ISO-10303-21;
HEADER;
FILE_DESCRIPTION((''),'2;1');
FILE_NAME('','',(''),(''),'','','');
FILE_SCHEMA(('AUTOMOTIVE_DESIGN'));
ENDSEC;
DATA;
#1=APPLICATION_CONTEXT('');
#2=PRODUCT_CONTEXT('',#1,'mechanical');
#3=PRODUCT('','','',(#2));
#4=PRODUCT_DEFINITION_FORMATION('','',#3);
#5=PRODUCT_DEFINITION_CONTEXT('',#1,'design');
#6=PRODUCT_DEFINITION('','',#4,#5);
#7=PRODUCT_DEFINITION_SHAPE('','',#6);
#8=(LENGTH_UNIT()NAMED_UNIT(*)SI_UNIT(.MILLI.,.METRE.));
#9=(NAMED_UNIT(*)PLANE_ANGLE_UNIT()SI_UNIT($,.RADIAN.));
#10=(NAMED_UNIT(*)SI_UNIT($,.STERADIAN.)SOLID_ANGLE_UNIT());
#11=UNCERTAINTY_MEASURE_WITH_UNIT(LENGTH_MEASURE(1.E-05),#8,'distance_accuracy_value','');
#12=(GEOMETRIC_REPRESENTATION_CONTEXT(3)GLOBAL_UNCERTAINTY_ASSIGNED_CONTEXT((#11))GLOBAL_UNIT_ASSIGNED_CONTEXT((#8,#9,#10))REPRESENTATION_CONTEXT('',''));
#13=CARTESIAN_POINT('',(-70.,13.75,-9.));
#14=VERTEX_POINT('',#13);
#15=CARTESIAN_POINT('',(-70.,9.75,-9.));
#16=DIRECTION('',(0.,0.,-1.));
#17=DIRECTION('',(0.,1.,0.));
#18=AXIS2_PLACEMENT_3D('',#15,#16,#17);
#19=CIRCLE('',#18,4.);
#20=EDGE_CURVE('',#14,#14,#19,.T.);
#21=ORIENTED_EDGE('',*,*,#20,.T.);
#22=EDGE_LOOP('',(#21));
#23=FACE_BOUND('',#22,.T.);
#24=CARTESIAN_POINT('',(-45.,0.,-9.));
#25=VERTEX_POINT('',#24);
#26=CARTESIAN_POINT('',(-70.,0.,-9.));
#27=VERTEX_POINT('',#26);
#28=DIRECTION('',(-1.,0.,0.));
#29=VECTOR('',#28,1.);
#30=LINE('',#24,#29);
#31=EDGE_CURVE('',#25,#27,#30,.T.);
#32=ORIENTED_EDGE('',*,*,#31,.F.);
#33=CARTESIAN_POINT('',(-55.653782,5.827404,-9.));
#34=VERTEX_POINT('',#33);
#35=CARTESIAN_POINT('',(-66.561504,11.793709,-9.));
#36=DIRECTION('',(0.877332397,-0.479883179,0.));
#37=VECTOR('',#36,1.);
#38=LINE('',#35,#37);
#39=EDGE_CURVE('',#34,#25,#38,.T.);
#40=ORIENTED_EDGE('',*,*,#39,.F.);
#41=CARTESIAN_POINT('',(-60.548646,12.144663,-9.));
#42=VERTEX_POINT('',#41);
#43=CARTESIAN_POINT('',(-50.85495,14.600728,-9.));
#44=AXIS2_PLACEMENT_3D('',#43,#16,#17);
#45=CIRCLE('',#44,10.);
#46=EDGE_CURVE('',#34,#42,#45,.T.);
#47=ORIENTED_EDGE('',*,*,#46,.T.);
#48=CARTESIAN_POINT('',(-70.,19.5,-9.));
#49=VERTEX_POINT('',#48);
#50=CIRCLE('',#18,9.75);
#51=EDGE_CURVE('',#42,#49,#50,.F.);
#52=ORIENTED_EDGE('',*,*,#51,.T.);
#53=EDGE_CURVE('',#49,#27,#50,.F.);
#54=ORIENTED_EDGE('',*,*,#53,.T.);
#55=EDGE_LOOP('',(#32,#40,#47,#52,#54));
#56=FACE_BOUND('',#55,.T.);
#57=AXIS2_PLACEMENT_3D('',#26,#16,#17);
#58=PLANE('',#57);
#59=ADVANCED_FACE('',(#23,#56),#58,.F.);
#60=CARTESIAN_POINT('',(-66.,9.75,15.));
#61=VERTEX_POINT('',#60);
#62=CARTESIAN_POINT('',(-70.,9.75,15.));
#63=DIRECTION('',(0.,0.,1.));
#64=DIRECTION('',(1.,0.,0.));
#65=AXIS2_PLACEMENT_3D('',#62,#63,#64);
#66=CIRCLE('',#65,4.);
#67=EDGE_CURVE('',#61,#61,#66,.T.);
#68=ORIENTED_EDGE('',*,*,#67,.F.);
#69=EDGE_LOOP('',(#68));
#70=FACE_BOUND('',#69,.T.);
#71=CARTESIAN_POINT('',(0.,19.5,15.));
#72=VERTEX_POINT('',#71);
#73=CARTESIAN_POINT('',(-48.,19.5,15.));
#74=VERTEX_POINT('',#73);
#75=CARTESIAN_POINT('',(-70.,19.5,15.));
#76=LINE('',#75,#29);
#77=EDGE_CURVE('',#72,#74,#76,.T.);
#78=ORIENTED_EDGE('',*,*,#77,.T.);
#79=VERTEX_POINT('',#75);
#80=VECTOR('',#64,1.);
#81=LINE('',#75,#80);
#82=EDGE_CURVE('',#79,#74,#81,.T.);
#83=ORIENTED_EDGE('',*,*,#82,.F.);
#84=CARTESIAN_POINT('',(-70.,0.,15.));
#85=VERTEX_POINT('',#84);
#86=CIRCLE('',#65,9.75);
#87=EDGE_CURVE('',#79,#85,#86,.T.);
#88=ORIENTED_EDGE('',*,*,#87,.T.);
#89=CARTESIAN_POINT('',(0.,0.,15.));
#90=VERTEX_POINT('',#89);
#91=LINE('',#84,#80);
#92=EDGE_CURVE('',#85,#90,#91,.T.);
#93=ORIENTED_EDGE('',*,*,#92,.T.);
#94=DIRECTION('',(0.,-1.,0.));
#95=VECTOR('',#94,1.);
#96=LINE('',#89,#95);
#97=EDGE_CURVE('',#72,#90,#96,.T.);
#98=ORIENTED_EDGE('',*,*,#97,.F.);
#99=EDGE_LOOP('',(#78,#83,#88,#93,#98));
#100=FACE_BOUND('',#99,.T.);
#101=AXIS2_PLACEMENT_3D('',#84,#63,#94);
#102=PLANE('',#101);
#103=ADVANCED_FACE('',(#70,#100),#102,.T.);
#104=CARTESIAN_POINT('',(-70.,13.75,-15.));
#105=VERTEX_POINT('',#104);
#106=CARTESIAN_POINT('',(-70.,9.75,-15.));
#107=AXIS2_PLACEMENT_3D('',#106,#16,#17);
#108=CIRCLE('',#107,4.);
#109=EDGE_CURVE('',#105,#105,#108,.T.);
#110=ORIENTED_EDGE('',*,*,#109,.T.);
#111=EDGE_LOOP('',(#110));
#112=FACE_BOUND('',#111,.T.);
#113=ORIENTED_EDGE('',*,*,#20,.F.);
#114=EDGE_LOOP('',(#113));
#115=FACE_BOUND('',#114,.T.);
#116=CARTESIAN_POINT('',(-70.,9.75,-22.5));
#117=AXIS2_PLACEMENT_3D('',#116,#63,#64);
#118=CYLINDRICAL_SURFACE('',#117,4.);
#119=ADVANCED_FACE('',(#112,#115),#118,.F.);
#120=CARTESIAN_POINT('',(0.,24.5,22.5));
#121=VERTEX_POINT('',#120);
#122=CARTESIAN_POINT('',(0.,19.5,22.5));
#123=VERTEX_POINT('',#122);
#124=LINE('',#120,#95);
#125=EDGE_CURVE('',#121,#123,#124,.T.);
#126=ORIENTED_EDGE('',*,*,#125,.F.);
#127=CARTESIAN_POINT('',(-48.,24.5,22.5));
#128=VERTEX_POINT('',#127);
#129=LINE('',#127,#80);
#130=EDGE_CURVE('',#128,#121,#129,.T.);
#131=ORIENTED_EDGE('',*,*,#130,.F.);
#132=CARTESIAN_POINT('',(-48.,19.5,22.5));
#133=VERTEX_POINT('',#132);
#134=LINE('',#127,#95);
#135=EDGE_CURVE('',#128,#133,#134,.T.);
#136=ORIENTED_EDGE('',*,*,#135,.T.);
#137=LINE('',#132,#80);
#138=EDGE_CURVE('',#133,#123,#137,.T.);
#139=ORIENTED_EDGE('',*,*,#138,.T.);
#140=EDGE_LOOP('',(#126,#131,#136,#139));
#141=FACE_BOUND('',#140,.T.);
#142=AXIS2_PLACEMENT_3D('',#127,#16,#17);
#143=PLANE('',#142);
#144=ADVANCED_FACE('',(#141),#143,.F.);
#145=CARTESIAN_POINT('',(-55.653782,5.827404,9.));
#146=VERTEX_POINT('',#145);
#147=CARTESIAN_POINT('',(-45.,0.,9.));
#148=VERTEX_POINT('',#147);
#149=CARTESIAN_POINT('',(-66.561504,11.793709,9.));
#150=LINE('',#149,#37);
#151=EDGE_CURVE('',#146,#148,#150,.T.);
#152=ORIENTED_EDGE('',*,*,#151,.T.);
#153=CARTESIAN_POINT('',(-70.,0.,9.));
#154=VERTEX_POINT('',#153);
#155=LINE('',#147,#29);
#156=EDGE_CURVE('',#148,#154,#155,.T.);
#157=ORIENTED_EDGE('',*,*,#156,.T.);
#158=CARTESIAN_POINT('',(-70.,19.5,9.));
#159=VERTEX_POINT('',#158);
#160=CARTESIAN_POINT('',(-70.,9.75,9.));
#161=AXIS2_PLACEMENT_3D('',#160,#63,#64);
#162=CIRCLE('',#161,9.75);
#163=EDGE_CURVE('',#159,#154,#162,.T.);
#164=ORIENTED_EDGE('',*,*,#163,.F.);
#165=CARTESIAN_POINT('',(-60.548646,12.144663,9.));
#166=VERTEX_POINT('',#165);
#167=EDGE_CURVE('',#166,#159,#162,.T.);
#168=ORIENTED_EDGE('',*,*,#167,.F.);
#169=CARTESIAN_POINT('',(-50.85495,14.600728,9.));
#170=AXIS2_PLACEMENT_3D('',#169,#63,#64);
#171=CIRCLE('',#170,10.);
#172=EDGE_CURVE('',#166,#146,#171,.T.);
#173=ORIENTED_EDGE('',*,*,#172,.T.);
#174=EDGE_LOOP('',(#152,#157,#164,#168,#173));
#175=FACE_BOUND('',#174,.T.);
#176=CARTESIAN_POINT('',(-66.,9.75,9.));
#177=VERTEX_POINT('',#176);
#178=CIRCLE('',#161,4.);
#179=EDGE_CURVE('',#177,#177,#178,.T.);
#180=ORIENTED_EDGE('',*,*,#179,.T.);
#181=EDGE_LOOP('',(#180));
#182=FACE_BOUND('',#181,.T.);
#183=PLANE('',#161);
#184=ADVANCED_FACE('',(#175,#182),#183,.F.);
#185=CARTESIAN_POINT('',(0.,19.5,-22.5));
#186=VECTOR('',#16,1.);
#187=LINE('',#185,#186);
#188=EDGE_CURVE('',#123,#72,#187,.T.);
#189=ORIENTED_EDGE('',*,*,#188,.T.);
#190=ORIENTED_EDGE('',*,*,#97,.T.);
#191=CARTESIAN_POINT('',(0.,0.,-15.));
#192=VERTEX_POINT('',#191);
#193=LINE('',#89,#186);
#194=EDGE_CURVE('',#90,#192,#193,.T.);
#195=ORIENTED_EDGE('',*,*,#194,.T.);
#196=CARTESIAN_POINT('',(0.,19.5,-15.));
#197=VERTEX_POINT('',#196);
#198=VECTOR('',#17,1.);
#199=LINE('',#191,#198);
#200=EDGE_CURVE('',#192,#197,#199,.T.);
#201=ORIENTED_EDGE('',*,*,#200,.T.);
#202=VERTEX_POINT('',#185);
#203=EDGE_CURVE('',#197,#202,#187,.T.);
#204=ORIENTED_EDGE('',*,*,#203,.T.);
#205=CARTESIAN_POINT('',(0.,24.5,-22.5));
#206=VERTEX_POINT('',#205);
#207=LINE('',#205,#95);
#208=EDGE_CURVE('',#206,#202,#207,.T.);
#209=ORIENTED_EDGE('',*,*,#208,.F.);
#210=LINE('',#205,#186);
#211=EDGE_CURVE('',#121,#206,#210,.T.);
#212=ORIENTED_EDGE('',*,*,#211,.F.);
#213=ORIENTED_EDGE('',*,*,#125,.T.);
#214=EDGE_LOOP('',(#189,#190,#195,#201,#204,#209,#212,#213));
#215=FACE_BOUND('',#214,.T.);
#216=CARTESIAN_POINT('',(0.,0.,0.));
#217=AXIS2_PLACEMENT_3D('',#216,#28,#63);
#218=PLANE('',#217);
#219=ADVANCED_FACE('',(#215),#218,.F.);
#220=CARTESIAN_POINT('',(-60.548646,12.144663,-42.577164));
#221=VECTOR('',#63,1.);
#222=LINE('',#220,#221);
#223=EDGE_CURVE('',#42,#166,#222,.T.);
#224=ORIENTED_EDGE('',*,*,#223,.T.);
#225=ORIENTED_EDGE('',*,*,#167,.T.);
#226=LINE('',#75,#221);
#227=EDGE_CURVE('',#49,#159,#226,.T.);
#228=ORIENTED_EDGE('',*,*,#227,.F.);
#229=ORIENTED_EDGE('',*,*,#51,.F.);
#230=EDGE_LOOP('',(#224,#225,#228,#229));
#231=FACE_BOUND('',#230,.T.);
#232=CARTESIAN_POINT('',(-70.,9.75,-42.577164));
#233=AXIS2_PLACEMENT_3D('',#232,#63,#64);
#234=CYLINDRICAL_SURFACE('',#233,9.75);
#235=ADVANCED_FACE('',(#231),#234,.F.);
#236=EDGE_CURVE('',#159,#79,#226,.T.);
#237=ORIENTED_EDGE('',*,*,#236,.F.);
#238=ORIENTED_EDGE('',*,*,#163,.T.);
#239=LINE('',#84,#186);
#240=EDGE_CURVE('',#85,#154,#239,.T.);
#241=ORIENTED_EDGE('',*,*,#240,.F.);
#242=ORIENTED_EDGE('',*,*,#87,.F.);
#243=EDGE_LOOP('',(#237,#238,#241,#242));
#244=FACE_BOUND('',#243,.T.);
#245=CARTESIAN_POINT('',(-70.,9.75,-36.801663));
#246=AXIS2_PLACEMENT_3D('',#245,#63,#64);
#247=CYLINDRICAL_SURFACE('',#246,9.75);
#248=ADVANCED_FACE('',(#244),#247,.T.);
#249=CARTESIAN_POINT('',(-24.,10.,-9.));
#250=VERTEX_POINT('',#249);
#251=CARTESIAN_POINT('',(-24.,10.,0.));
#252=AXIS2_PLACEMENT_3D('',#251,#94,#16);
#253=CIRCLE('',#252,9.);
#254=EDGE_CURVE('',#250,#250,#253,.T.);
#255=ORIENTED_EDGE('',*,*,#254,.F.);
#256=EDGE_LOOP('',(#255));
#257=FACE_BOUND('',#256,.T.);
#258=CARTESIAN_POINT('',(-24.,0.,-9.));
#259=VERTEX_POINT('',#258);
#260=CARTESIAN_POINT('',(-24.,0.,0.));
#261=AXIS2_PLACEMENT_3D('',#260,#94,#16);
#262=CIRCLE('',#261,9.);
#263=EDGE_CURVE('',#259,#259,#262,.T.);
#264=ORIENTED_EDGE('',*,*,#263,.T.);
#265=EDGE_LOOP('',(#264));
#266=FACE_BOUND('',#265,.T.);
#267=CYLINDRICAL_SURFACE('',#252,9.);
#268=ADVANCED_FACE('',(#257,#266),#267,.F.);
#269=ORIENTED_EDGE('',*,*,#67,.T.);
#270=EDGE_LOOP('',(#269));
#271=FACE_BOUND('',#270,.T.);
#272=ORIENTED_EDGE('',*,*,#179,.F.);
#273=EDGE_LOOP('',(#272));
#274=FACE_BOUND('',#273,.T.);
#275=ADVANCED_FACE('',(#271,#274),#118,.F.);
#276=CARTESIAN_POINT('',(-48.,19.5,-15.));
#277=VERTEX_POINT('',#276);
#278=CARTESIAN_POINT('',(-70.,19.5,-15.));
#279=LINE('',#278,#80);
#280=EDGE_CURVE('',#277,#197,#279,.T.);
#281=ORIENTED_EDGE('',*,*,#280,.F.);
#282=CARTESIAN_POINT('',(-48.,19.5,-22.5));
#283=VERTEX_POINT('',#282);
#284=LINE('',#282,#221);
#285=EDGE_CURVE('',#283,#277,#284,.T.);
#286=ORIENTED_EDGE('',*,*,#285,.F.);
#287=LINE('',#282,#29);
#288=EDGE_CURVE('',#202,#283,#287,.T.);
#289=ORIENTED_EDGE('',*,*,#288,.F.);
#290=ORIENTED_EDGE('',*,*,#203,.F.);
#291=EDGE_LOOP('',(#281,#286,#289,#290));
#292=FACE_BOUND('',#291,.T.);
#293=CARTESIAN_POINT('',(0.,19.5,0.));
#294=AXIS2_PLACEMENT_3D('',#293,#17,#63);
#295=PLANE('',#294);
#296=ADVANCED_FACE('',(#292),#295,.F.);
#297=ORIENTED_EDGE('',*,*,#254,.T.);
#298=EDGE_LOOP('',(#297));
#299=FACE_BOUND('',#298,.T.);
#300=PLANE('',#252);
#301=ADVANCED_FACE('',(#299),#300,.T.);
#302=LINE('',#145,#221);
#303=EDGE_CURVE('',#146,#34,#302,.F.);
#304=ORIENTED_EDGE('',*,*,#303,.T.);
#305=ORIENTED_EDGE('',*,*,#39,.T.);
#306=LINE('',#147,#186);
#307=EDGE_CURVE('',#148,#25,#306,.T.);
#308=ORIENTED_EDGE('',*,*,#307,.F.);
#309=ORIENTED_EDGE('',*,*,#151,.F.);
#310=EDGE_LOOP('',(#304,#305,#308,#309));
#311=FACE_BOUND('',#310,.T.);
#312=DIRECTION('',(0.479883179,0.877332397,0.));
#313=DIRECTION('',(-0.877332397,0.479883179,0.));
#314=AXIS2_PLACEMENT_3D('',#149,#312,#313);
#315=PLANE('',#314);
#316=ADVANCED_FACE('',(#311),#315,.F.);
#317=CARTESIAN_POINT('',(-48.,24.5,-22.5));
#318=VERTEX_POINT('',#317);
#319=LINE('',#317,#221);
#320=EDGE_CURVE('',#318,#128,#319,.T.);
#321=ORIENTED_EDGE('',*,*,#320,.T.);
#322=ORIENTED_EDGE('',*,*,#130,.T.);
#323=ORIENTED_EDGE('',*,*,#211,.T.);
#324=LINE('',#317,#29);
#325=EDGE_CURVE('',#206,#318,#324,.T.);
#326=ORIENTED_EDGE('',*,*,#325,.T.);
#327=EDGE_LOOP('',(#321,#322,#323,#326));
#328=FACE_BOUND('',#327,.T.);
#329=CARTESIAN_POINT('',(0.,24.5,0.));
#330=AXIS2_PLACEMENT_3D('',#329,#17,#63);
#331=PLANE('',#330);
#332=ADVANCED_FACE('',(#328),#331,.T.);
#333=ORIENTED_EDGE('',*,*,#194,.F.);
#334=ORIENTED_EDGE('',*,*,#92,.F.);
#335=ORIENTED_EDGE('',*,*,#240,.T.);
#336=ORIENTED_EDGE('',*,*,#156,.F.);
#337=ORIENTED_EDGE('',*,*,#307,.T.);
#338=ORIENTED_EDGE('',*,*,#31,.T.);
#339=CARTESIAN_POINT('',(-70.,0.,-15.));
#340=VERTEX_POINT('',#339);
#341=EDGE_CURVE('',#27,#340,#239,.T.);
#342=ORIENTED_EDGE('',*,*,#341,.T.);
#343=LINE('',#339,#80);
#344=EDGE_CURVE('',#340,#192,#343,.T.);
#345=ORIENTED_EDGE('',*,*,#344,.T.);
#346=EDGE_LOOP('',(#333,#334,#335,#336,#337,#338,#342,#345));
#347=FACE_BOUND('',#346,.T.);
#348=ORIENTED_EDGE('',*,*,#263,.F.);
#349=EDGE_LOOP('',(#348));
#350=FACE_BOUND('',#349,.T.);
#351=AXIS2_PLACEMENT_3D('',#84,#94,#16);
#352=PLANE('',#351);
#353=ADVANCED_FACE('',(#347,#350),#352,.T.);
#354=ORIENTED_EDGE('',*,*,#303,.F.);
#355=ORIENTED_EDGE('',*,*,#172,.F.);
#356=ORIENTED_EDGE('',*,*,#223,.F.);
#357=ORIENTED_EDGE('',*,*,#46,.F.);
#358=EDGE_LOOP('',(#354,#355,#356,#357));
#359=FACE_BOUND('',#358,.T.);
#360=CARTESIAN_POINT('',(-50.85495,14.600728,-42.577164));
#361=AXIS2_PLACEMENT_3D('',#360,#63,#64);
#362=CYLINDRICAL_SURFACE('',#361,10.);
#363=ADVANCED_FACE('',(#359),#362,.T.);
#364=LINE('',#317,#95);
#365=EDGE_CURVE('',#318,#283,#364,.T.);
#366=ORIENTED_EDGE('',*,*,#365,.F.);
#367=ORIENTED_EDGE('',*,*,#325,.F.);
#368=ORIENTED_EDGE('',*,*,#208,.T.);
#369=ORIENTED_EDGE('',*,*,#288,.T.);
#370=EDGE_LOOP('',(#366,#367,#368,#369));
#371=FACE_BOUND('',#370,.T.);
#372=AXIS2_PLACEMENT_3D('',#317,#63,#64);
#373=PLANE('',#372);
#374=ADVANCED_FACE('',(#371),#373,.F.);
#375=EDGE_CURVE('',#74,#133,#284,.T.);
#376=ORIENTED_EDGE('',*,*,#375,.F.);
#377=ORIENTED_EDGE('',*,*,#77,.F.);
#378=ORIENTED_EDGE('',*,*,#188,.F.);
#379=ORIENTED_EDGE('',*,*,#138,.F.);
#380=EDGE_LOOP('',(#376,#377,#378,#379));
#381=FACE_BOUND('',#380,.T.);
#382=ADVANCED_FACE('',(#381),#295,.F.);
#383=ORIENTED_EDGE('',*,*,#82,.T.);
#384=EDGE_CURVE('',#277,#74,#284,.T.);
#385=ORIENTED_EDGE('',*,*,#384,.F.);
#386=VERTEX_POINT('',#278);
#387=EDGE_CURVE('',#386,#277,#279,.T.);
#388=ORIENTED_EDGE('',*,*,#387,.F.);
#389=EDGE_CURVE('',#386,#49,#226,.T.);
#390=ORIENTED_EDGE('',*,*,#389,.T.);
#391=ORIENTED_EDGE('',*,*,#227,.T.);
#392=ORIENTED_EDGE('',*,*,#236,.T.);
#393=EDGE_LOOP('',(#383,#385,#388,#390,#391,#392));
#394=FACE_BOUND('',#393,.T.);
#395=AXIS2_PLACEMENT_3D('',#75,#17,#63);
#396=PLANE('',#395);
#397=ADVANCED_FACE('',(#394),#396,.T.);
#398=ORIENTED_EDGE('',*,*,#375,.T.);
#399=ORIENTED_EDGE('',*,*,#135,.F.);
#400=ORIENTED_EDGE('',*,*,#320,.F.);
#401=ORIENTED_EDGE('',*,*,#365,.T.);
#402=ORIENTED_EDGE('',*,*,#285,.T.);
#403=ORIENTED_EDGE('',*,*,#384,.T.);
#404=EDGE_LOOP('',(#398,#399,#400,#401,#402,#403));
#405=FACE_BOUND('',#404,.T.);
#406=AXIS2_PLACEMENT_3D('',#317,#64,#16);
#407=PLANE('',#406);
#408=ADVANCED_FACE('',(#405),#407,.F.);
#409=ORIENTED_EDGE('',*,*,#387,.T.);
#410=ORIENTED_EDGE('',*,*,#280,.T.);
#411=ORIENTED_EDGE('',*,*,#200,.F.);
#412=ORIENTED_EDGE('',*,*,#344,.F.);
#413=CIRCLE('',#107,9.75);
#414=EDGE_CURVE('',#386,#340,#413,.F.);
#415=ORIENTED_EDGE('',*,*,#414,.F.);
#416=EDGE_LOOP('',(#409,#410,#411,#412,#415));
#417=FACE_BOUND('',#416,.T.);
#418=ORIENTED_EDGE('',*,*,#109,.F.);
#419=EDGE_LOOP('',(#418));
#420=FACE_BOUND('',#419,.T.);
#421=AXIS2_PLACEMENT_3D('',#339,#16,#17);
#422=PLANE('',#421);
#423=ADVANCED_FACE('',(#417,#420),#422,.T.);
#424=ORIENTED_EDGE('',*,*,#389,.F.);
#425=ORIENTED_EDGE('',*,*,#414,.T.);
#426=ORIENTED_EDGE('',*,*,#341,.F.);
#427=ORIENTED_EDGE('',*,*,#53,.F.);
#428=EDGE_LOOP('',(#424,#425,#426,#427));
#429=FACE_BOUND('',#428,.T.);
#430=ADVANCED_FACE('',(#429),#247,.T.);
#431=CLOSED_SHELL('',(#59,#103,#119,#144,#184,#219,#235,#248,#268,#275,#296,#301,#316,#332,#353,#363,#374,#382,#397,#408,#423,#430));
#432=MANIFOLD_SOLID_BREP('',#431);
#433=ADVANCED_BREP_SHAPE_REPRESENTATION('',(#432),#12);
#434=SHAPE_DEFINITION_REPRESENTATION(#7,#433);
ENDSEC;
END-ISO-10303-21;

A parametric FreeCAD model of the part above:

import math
import FreeCAD as App
import Part
import Sketcher

V = App.Vector


def edges_at(feature, points):
    """Names of the edges that pass closest to the given points."""
    edges = feature.Shape.Edges
    near = lambda p: min(range(len(edges)), key=lambda i: edges[i].distToShape(Part.Vertex(*p))[0])
    return sorted({f"Edge{near(p) + 1}" for p in points})


def add_polygon(sketch, points):
    """Adds a closed chain of lines whose ends are joined by coincident constraints."""
    first, n = sketch.GeometryCount, len(points)
    for a, b in zip(points, points[1:] + points[:1]):
        sketch.addGeometry(Part.LineSegment(App.Vector(*a, 0), App.Vector(*b, 0)), False)
    for i in range(n):
        sketch.addConstraint(Sketcher.Constraint("Coincident", first + i, 2, first + (i + 1) % n, 1))

doc = App.newDocument("Part")
body = doc.addObject("PartDesign::Body", "Body")

sketch1 = body.newObject("Sketcher::SketchObject", "Sketch")
sketch1.AttachmentSupport = (doc.getObject("YZ_Plane"), [""])
sketch1.MapMode = "FlatFace"
add_polygon(sketch1, [(20, 15), (0, 15), (0, -15), (20, -15)])
sketch1.addConstraint(Sketcher.Constraint("Horizontal", 0))
sketch1.addConstraint(Sketcher.Constraint("Vertical", 1))
sketch1.addConstraint(Sketcher.Constraint("Horizontal", 2))
sketch1.addConstraint(Sketcher.Constraint("Vertical", 3))
sketch1.addConstraint(Sketcher.Constraint("Symmetric", 0, 2, 1, 2, -1, 1))
sketch1.addConstraint(Sketcher.Constraint("DistanceY", 1, 2, 1, 1, 30.0))
sketch1.addConstraint(Sketcher.Constraint("DistanceX", 0, 2, 0, 1, 19.5))
pad1 = body.newObject("PartDesign::Pad", "Pad")
pad1.Profile = sketch1
pad1.Length = 70
pad1.Reversed = True

sketch2 = body.newObject("Sketcher::SketchObject", "Sketch001")
sketch2.AttachmentSupport = (doc.getObject("XY_Plane"), [""])
sketch2.MapMode = "FlatFace"
sketch2.AttachmentOffset = App.Placement(V(0, 0, 15), App.Rotation())
sketch2.addGeometry(Part.LineSegment(V(-70, 0, 0), V(-70, 20, 0)), False)
sketch2.addGeometry(Part.ArcOfCircle(Part.Circle(V(-70, 10, 0), V(0, 0, 1), 10), math.radians(90), math.radians(270)), False)
sketch2.addConstraint(Sketcher.Constraint("Coincident", 0, 1, 1, 2))
sketch2.addConstraint(Sketcher.Constraint("Coincident", 1, 1, 0, 2))
sketch2.addConstraint(Sketcher.Constraint("Vertical", 0))
sketch2.addConstraint(Sketcher.Constraint("PointOnObject", 0, 1, -1))
sketch2.addConstraint(Sketcher.Constraint("Vertical", 1, 3, 0, 1))
sketch2.addConstraint(Sketcher.Constraint("Radius", 1, 9.75))
sketch2.addConstraint(Sketcher.Constraint("DistanceX", 1, 3, -1, 1, 70.0))
pad2 = body.newObject("PartDesign::Pad", "Pad001")
pad2.Profile = sketch2
pad2.Length = 30
pad2.Reversed = True

sketch3 = body.newObject("Sketcher::SketchObject", "Sketch002")
sketch3.AttachmentSupport = (doc.getObject("XZ_Plane"), [""])
sketch3.MapMode = "FlatFace"
sketch3.AttachmentOffset = App.Placement(V(0, 0, -19.5), App.Rotation())
add_polygon(sketch3, [(-48, -22), (-48, 22), (0, 22), (0, -22)])
sketch3.addConstraint(Sketcher.Constraint("Vertical", 0))
sketch3.addConstraint(Sketcher.Constraint("Horizontal", 1))
sketch3.addConstraint(Sketcher.Constraint("Vertical", 2))
sketch3.addConstraint(Sketcher.Constraint("Horizontal", 3))
sketch3.addConstraint(Sketcher.Constraint("Symmetric", 1, 2, 2, 2, -1, 1))
sketch3.addConstraint(Sketcher.Constraint("DistanceX", 1, 1, 1, 2, 48.0))
sketch3.addConstraint(Sketcher.Constraint("DistanceY", 0, 1, 0, 2, 45.0))
pad3 = body.newObject("PartDesign::Pad", "Pad002")
pad3.Profile = sketch3
pad3.Length = 5
pad3.Reversed = True

sketch4 = body.newObject("Sketcher::SketchObject", "Sketch003")
sketch4.AttachmentSupport = (doc.getObject("XY_Plane"), [""])
sketch4.MapMode = "FlatFace"
sketch4.AttachmentOffset = App.Placement(V(0, 0, 9), App.Rotation())
sketch4.addGeometry(Part.Circle(V(-70, 10, 0), V(0, 0, 1), 10), False)
sketch4.addConstraint(Sketcher.Constraint("Diameter", 0, 19.5))
sketch4.addConstraint(Sketcher.Constraint("DistanceX", 0, 3, -1, 1, 70.0))
sketch4.addConstraint(Sketcher.Constraint("DistanceY", -1, 1, 0, 3, 9.75))
pocket1 = body.newObject("PartDesign::Pocket", "Pocket")
pocket1.Profile = sketch4
pocket1.Length = 18

sketch5 = body.newObject("Sketcher::SketchObject", "Sketch004")
sketch5.AttachmentSupport = (doc.getObject("XY_Plane"), [""])
sketch5.MapMode = "FlatFace"
sketch5.AttachmentOffset = App.Placement(V(0, 0, 15), App.Rotation())
sketch5.addGeometry(Part.Circle(V(-70, 9.8, 0), V(0, 0, 1), 4), False)
sketch5.addConstraint(Sketcher.Constraint("Diameter", 0, 8.0))
sketch5.addConstraint(Sketcher.Constraint("DistanceX", 0, 3, -1, 1, 70.0))
sketch5.addConstraint(Sketcher.Constraint("DistanceY", -1, 1, 0, 3, 9.75))
pocket2 = body.newObject("PartDesign::Pocket", "Pocket001")
pocket2.Profile = sketch5
pocket2.Type = "ThroughAll"

sketch6 = body.newObject("Sketcher::SketchObject", "Sketch005")
sketch6.AttachmentSupport = (doc.getObject("XZ_Plane"), [""])
sketch6.MapMode = "FlatFace"
sketch6.addGeometry(Part.Circle(V(-24, 0, 0), V(0, 0, 1), 9), False)
sketch6.addConstraint(Sketcher.Constraint("PointOnObject", 0, 3, -1))
sketch6.addConstraint(Sketcher.Constraint("Diameter", 0, 18.0))
sketch6.addConstraint(Sketcher.Constraint("DistanceX", 0, 3, -1, 1, 24.0))
pocket3 = body.newObject("PartDesign::Pocket", "Pocket002")
pocket3.Profile = sketch6
pocket3.Length = 10

sketch7 = body.newObject("Sketcher::SketchObject", "Sketch006")
sketch7.AttachmentSupport = (doc.getObject("XY_Plane"), [""])
sketch7.MapMode = "FlatFace"
sketch7.AttachmentOffset = App.Placement(V(0, 0, -9), App.Rotation())
add_polygon(sketch7, [(-67, 12), (-45, 0), (-70, 0)])
sketch7.addConstraint(Sketcher.Constraint("Horizontal", 1))
sketch7.addConstraint(Sketcher.Constraint("PointOnObject", 0, 2, -1))
sketch7.addConstraint(Sketcher.Constraint("DistanceX", 1, 2, 1, 1, 25.0))
sketch7.addConstraint(Sketcher.Constraint("DistanceX", 0, 2, -1, 1, 45.0))
sketch7.addConstraint(Sketcher.Constraint("Distance", 0, 24.576209))
sketch7.addConstraint(Sketcher.Constraint("Distance", 2, 12.28474))
pocket4 = body.newObject("PartDesign::Pocket", "Pocket003")
pocket4.Profile = sketch7
pocket4.Length = 18
pocket4.Reversed = True
doc.recompute()

fillet = body.newObject("PartDesign::Fillet", "Fillet")
fillet.Base = (pocket4, edges_at(pocket4, [(-60.345, 8.393, 0)]))
fillet.Radius = 10

doc.recompute()
